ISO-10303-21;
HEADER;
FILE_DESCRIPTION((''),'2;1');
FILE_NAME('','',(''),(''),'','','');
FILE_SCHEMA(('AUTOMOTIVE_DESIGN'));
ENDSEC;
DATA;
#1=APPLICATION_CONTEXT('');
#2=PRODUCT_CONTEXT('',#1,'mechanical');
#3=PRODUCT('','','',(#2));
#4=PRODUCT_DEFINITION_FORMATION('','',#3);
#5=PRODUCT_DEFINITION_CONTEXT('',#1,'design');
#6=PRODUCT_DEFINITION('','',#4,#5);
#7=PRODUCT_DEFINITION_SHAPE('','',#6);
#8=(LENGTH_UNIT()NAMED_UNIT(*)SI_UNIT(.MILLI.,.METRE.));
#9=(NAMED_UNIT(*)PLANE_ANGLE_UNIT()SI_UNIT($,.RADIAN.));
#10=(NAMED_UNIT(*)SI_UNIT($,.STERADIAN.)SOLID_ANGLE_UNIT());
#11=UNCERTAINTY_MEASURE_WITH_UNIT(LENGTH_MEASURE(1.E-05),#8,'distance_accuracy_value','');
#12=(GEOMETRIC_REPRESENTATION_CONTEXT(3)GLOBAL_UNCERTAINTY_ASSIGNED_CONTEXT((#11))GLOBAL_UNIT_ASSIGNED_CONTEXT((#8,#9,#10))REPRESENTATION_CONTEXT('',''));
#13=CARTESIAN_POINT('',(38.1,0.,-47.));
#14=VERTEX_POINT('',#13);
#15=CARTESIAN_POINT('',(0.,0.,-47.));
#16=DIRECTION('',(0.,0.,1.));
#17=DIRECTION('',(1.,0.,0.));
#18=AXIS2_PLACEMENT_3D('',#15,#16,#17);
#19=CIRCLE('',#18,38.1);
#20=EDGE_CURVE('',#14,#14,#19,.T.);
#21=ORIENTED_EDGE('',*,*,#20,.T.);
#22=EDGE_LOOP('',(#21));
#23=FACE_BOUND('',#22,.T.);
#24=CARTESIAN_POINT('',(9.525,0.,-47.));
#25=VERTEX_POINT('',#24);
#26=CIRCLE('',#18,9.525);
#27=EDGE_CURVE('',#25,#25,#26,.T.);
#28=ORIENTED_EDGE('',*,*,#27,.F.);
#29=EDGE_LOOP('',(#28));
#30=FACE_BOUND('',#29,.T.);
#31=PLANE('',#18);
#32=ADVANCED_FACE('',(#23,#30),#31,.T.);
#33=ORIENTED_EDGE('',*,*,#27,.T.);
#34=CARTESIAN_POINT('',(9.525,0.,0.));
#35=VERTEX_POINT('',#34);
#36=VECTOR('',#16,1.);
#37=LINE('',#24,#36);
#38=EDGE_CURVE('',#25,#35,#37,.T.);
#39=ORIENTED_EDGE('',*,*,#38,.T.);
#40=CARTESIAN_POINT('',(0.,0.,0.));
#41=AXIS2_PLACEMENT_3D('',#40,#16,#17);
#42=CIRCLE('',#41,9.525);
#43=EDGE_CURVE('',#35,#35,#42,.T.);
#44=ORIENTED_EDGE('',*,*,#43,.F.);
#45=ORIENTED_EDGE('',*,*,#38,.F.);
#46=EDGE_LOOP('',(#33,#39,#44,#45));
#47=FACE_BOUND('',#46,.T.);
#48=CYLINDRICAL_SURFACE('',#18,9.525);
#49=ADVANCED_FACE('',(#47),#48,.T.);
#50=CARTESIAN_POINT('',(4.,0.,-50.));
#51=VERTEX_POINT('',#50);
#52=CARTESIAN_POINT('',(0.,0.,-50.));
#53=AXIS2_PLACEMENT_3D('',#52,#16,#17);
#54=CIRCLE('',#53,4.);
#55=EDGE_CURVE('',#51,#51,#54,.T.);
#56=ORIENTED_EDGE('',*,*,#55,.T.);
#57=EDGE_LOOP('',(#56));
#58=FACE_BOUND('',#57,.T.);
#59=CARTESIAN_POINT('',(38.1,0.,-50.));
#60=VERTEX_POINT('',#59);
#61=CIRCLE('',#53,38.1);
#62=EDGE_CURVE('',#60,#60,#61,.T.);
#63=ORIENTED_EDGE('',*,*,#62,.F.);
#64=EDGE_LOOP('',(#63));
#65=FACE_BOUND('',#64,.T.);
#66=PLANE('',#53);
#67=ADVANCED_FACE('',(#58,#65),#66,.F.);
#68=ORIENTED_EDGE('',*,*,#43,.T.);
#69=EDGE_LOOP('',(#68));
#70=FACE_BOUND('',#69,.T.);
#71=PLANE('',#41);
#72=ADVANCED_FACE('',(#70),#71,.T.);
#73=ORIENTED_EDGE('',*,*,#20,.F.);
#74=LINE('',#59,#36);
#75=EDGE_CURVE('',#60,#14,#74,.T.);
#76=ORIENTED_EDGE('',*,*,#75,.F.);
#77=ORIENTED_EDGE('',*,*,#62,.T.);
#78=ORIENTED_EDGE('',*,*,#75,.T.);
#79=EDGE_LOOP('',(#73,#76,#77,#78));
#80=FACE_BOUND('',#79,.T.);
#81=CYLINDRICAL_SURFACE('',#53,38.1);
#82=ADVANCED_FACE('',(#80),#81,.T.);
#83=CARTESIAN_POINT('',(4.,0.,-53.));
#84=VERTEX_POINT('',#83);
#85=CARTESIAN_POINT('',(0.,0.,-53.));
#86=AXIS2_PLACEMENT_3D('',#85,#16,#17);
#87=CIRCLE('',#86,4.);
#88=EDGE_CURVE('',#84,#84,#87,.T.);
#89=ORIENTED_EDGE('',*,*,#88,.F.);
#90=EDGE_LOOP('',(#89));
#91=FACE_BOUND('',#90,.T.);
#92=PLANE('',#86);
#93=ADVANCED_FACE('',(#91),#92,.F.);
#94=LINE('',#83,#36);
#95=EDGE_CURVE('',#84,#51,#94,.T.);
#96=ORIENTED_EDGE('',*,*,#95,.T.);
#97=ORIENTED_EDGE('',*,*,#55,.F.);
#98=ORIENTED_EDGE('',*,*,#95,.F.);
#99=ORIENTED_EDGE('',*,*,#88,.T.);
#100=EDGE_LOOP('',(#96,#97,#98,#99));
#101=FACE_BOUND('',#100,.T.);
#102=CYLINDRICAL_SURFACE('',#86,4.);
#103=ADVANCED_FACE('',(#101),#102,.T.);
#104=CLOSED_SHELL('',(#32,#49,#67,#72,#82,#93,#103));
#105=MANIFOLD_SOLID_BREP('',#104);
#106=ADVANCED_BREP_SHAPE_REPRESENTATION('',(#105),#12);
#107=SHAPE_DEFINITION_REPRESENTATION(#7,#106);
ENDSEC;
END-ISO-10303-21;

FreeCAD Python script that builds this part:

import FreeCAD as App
import Part
import Sketcher
Q = App.Units.Quantity


def add_polygon(sketch, points):
    """Adds a closed chain of lines whose ends are joined by coincident constraints."""
    first, n = sketch.GeometryCount, len(points)
    for a, b in zip(points, points[1:] + points[:1]):
        sketch.addGeometry(Part.LineSegment(App.Vector(*a, 0), App.Vector(*b, 0)), False)
    for i in range(n):
        sketch.addConstraint(Sketcher.Constraint("Coincident", first + i, 2, first + (i + 1) % n, 1))

doc = App.newDocument("Part")
params = doc.addObject("Spreadsheet::Sheet", "Params")
for row, (alias, value) in enumerate([
    ("sketch1_width", "4 mm"),
    ("sketch1_height", "53 mm"),
    ("sketch1_height2", "3 mm"),
    ("sketch1_width2", "34.1 mm"),
    ("revolution_angle", "360 deg"),
], start=1):
    params.set(f"A{row}", alias)
    params.set(f"B{row}", "=" + value)
    params.setAlias(f"B{row}", alias)

body = doc.addObject("PartDesign::Body", "Body")

sketch1 = body.newObject("Sketcher::SketchObject", "Sketch")
sketch1.AttachmentSupport = (doc.getObject("XZ_Plane"), [""])
sketch1.MapMode = "FlatFace"
add_polygon(sketch1, [(0, 0), (0, -53), (4, -53), (4, -50), (38.1, -50), (38.1, -47), (9.525, -47), (9.525, 0)])
sketch1.addConstraint([
    Sketcher.Constraint("Vertical", 0),
    Sketcher.Constraint("Horizontal", 1),
    Sketcher.Constraint("Vertical", 2),
    Sketcher.Constraint("Horizontal", 3),
    Sketcher.Constraint("Vertical", 4),
    Sketcher.Constraint("Horizontal", 5),
    Sketcher.Constraint("Vertical", 6),
    Sketcher.Constraint("Horizontal", 7),
    Sketcher.Constraint("Coincident", 7, 2, -1, 1),
    Sketcher.Constraint("Equal", 2, 4),
    Sketcher.Constraint("DistanceX", 1, 1, 1, 2, Q("4 mm")),
    Sketcher.Constraint("DistanceY", 0, 2, 0, 1, Q("53 mm")),
    Sketcher.Constraint("DistanceY", 2, 1, 2, 2, Q("3 mm")),
    Sketcher.Constraint("DistanceX", 3, 1, 3, 2, Q("34.1 mm")),
    Sketcher.Constraint("DistanceX", 5, 2, 5, 1, Q("28.575 mm")),
])
sketch1.setExpression("Constraints[18]", "Params.sketch1_width")
sketch1.setExpression("Constraints[19]", "Params.sketch1_height")
sketch1.setExpression("Constraints[20]", "Params.sketch1_height2")
sketch1.setExpression("Constraints[21]", "Params.sketch1_width2")
revolution = body.newObject("PartDesign::Revolution", "Revolution")
revolution.Profile = sketch1
revolution.ReferenceAxis = (sketch1, ["V_Axis"])
revolution.setExpression("Angle", "Params.revolution_angle")

doc.recompute()
